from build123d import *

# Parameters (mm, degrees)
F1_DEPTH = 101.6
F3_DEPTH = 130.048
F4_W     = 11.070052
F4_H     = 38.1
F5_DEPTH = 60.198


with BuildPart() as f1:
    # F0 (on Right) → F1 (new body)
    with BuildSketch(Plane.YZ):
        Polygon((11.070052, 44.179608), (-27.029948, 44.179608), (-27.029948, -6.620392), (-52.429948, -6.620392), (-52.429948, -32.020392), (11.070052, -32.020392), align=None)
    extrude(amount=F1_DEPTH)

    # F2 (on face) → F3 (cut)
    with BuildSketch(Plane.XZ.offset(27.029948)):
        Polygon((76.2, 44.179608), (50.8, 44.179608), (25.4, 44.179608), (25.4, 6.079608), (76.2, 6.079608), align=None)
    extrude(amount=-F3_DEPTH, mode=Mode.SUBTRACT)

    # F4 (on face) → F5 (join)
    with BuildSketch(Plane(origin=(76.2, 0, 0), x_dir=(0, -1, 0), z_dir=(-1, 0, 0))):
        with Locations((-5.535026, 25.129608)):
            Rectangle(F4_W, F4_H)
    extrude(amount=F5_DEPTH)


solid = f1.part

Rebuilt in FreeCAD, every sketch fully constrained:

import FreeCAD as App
import Part
import Sketcher
from FreeCAD import Vector
Q = App.Units.Quantity


def add_polygon(sketch, points):
    """Adds a closed chain of lines whose ends are joined by coincident constraints."""
    first, n = sketch.GeometryCount, len(points)
    for a, b in zip(points, points[1:] + points[:1]):
        sketch.addGeometry(Part.LineSegment(App.Vector(*a, 0), App.Vector(*b, 0)), False)
    for i in range(n):
        sketch.addConstraint(Sketcher.Constraint("Coincident", first + i, 2, first + (i + 1) % n, 1))

doc = App.newDocument("Part")
params = doc.addObject("Spreadsheet::Sheet", "Params")
for row, (alias, value) in enumerate([
    ("sketch1_width", "1 in"),
    ("sketch1_height", "2 in"),
    ("sketch1_width2", "1.5 in"),
    ("pad1_length", "4 in"),
    ("sketch2_width", "2 in"),
    ("sketch2_height", "1.5 in"),
    ("pocket1_length", "5.12 in"),
    ("sketch3_height", "1.5 in"),
    ("pad2_length", "2.37 in"),
], start=1):
    params.set(f"A{row}", alias)
    params.set(f"B{row}", "=" + value)
    params.setAlias(f"B{row}", alias)

body = doc.addObject("PartDesign::Body", "Body")

# Sketch on YZ plane
sketch1 = doc.addObject("Sketcher::SketchObject", "Sketch")
body.addObject(sketch1)
sketch1.AttachmentSupport = (doc.YZ_Plane, [""])
sketch1.MapMode = "FlatFace"
add_polygon(sketch1, [(11, 44), (-27, 44), (-27, -7), (-52, -7), (-52, -32), (11, -32)])  # lines 0-5
sketch1.addConstraint([
    Sketcher.Constraint("Horizontal", 0),
    Sketcher.Constraint("Vertical", 1),
    Sketcher.Constraint("Horizontal", 2),
    Sketcher.Constraint("Vertical", 3),
    Sketcher.Constraint("Horizontal", 4),
    Sketcher.Constraint("Vertical", 5),
    Sketcher.Constraint("Equal", 2, 3),
    Sketcher.Constraint("DistanceX", 2, 2, 2, 1, Q("1 in")),
    Sketcher.Constraint("DistanceY", 1, 2, 1, 1, Q("2 in")),
    Sketcher.Constraint("DistanceX", 0, 2, 0, 1, Q("1.5 in")),
    Sketcher.Constraint("DistanceX", 0, 2, -1, 1, 27.029948),
    Sketcher.Constraint("DistanceY", -1, 1, 0, 2, 44.179608),
])
sketch1.setExpression("Constraints[13]", "Params.sketch1_width")
sketch1.setExpression("Constraints[14]", "Params.sketch1_height")
sketch1.setExpression("Constraints[15]", "Params.sketch1_width2")
pad1 = doc.addObject("PartDesign::Pad", "Pad")
body.addObject(pad1)
pad1.Profile = sketch1
pad1.setExpression("Length", "Params.pad1_length")

# Sketch on XZ plane
sketch2 = doc.addObject("Sketcher::SketchObject", "Sketch001")
body.addObject(sketch2)
sketch2.AttachmentSupport = (doc.XZ_Plane, [""])
sketch2.MapMode = "FlatFace"
sketch2.AttachmentOffset = App.Placement(Vector(0, 0, 27.029948), App.Rotation())
add_polygon(sketch2, [(76, 44), (25, 44), (25, 6), (76, 6)])  # lines 0-3
sketch2.addConstraint([
    Sketcher.Constraint("Horizontal", 0),
    Sketcher.Constraint("Vertical", 1),
    Sketcher.Constraint("Horizontal", 2),
    Sketcher.Constraint("Vertical", 3),
    Sketcher.Constraint("DistanceX", 0, 2, 0, 1, Q("2 in")),
    Sketcher.Constraint("DistanceY", 1, 2, 1, 1, Q("1.5 in")),
    Sketcher.Constraint("DistanceX", -1, 1, 0, 2, Q("1 in")),
    Sketcher.Constraint("DistanceY", -1, 1, 0, 2, 44.179608),
])
sketch2.setExpression("Constraints[8]", "Params.sketch2_width")
sketch2.setExpression("Constraints[9]", "Params.sketch2_height")
pocket1 = doc.addObject("PartDesign::Pocket", "Pocket")
body.addObject(pocket1)
pocket1.Profile = sketch2
pocket1.setExpression("Length", "Params.pocket1_length")

# Sketch on YZ plane
sketch3 = doc.addObject("Sketcher::SketchObject", "Sketch002")
body.addObject(sketch3)
sketch3.AttachmentSupport = (doc.YZ_Plane, [""])
sketch3.MapMode = "FlatFace"
sketch3.AttachmentOffset = App.Placement(Vector(0, 0, 3 * 25.4), App.Rotation())
add_polygon(sketch3, [(11, 44), (11, 6), (0, 6), (0, 44)])  # lines 0-3
sketch3.addConstraint([
    Sketcher.Constraint("Vertical", 0),
    Sketcher.Constraint("Horizontal", 1),
    Sketcher.Constraint("Vertical", 2),
    Sketcher.Constraint("Horizontal", 3),
    Sketcher.Constraint("PointOnObject", 1, 2, -2),
    Sketcher.Constraint("DistanceY", 0, 2, 0, 1, Q("1.5 in")),
    Sketcher.Constraint("DistanceX", 1, 2, 1, 1, 11.070052),
    Sketcher.Constraint("DistanceY", -1, 1, 0, 2, 6.079608),
])
sketch3.setExpression("Constraints[9]", "Params.sketch3_height")
pad2 = doc.addObject("PartDesign::Pad", "Pad001")
body.addObject(pad2)
pad2.Profile = sketch3
pad2.setExpression("Length", "Params.pad2_length")
pad2.Reversed = True

doc.recompute()
